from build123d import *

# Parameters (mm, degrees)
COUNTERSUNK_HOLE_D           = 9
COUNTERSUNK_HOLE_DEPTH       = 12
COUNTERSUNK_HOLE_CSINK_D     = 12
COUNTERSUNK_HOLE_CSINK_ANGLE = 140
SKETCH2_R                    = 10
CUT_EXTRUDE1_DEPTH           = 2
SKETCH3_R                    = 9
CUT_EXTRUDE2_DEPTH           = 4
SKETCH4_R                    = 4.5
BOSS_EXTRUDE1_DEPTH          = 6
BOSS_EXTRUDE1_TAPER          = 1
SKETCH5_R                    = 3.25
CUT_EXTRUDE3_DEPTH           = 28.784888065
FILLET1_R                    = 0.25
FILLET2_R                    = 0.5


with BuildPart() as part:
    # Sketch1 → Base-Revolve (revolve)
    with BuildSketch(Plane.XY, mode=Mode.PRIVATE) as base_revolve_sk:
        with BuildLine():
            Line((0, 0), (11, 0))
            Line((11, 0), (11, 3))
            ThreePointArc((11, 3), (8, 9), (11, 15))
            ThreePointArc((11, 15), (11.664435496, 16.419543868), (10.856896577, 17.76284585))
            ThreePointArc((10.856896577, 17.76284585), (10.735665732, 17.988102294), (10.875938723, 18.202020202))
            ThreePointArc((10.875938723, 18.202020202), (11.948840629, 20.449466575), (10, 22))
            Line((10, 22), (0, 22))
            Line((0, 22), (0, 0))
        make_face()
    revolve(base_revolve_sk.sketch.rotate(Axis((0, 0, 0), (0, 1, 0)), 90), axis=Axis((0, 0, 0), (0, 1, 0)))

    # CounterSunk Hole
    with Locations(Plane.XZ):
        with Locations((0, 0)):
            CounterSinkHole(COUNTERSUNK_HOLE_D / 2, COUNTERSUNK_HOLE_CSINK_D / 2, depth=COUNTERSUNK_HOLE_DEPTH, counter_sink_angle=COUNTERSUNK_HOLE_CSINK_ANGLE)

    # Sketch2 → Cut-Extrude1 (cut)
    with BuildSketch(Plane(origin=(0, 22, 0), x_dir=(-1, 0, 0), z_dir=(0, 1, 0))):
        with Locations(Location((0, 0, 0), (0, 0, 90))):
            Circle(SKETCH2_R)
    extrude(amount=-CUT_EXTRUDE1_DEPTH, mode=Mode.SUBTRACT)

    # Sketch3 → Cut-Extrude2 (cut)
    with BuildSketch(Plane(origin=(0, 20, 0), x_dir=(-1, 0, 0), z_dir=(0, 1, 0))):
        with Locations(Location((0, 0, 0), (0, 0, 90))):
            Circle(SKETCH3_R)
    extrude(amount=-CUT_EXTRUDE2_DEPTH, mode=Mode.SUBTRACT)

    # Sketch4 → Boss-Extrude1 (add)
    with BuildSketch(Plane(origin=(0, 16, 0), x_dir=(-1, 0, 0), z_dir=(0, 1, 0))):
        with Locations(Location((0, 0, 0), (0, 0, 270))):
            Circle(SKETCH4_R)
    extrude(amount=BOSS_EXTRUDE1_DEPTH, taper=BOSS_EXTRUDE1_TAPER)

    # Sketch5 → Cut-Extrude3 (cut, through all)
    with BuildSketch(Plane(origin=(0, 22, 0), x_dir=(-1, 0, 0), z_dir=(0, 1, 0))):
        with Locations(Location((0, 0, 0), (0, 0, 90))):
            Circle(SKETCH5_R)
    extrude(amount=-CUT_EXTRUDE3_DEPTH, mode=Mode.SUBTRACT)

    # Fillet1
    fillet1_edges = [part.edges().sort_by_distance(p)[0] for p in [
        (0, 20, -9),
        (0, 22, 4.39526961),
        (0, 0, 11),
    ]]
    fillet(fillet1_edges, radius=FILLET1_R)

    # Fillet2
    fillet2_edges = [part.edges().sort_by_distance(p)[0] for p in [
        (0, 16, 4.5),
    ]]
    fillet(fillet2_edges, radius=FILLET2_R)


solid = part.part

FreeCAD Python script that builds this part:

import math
import FreeCAD as App
import Part
import Sketcher
from FreeCAD import Vector
Q = App.Units.Quantity


def edges_at(feature, points):
    """Names of the edges that pass closest to the given points."""
    edges = feature.Shape.Edges
    near = lambda p: min(range(len(edges)), key=lambda i: edges[i].distToShape(Part.Vertex(*p))[0])
    return sorted({f"Edge{near(p) + 1}" for p in points})

doc = App.newDocument("Part")
body = doc.addObject("PartDesign::Body", "Body")

# Sketch on XY plane
sketch1 = doc.addObject("Sketcher::SketchObject", "Sketch")
body.addObject(sketch1)
sketch1.AttachmentSupport = (doc.XY_Plane, [""])
sketch1.MapMode = "FlatFace"
sketch1.addGeometry([
    Part.LineSegment(Vector(0, 0, 0), Vector(11, 0, 0)),  # 0
    Part.LineSegment(Vector(11, 0, 0), Vector(11, 3, 0)),  # 1
    Part.ArcOfCircle(Part.Circle(Vector(15.5, 9, 0), Vector(0, 0, 1), 7.5), math.radians(127), math.radians(233)),  # 2
    Part.ArcOfCircle(Part.Circle(Vector(10, 16.33, 0), Vector(0, 0, 1), 1.67), math.radians(-53), math.radians(59)),  # 3
    Part.ArcOfCircle(Part.Circle(Vector(10.99, 17.98, 0), Vector(0, 0, 1), 0.25), math.radians(116), math.radians(239)),  # 4
    Part.ArcOfCircle(Part.Circle(Vector(10, 20, 0), Vector(0, 0, 1), 2), math.radians(-64), math.radians(90)),  # 5
    Part.LineSegment(Vector(10, 22, 0), Vector(0, 22, 0)),  # 6
    Part.LineSegment(Vector(0, 22, 0), Vector(0, 0, 0)),  # 7
], False)
sketch1.addConstraint([
    Sketcher.Constraint("Coincident", 0, 2, 1, 1),
    Sketcher.Constraint("Coincident", 1, 2, 2, 2),
    Sketcher.Constraint("Tangent", 2, 1, 3, 1),
    Sketcher.Constraint("Tangent", 3, 2, 4, 2),
    Sketcher.Constraint("Tangent", 4, 1, 5, 1),
    Sketcher.Constraint("Tangent", 5, 2, 6, 1),
    Sketcher.Constraint("Coincident", 6, 2, 7, 1),
    Sketcher.Constraint("Coincident", 7, 2, 0, 1),
    Sketcher.Constraint("Horizontal", 0),
    Sketcher.Constraint("Vertical", 1),
    Sketcher.Constraint("Horizontal", 6),
    Sketcher.Constraint("Vertical", 7),
    Sketcher.Constraint("Coincident", 7, 2, -1, 1),
    Sketcher.Constraint("Vertical", 3, 3, 5, 3),
    Sketcher.Constraint("Vertical", 1, 2, 2, 1),
    Sketcher.Constraint("Radius", 5, Q("2 mm")),
    Sketcher.Constraint("Radius", 2, Q("7.5 mm")),
    Sketcher.Constraint("DistanceX", 0, 1, 0, 2, Q("11 mm")),
    Sketcher.Constraint("DistanceX", 6, 2, 6, 1, Q("10 mm")),
    Sketcher.Constraint("DistanceY", 1, 1, 1, 2, Q("3 mm")),
    Sketcher.Constraint("DistanceY", 7, 2, 7, 1, Q("22 mm")),
    Sketcher.Constraint("Radius", 4, Q("0.25 mm")),
    Sketcher.Constraint("DistanceY", -1, 1, 2, 3, Q("9 mm")),
])
revolution = doc.addObject("PartDesign::Revolution", "Revolution")
body.addObject(revolution)
revolution.Profile = sketch1
revolution.ReferenceAxis = (sketch1, ["V_Axis"])
revolution.Angle = 360

# Sketch on XZ plane
sketch2 = doc.addObject("Sketcher::SketchObject", "Sketch001")
body.addObject(sketch2)
sketch2.AttachmentSupport = (doc.XZ_Plane, [""])
sketch2.MapMode = "FlatFace"
sketch2.addGeometry(Part.Circle(Vector(0, 0, 0), Vector(0, 0, 1), 4.5), False)
sketch2.addConstraint([
    Sketcher.Constraint("Coincident", 0, 3, -1, 1),
    Sketcher.Constraint("Diameter", 0, Q("9 mm")),
])
doc.recompute()
hole = doc.addObject("PartDesign::Hole", "Hole")
body.addObject(hole)
hole.Profile = sketch2
hole.ThreadType = "None"
hole.Diameter = 9
hole.DepthType = "Dimension"
hole.Depth = 12
hole.DrillPoint = "Flat"
hole.HoleCutType = "Countersink"
hole.HoleCutDiameter = 12
hole.HoleCutCountersinkAngle = 140

# Sketch on XZ plane
sketch3 = doc.addObject("Sketcher::SketchObject", "Sketch002")
body.addObject(sketch3)
sketch3.AttachmentSupport = (doc.XZ_Plane, [""])
sketch3.MapMode = "FlatFace"
sketch3.AttachmentOffset = App.Placement(Vector(0, 0, -22), App.Rotation())
sketch3.addGeometry(Part.Circle(Vector(0, 0, 0), Vector(0, 0, 1), 10), False)
sketch3.addConstraint([
    Sketcher.Constraint("Coincident", 0, 3, -1, 1),
    Sketcher.Constraint("Diameter", 0, Q("20 mm")),
])
pocket1 = doc.addObject("PartDesign::Pocket", "Pocket")
body.addObject(pocket1)
pocket1.Profile = sketch3
pocket1.Length = 2
pocket1.Reversed = True

# Sketch on XZ plane
sketch4 = doc.addObject("Sketcher::SketchObject", "Sketch003")
body.addObject(sketch4)
sketch4.AttachmentSupport = (doc.XZ_Plane, [""])
sketch4.MapMode = "FlatFace"
sketch4.AttachmentOffset = App.Placement(Vector(0, 0, -20), App.Rotation())
sketch4.addGeometry(Part.Circle(Vector(0, 0, 0), Vector(0, 0, 1), 9), False)
sketch4.addConstraint([
    Sketcher.Constraint("Coincident", 0, 3, -1, 1),
    Sketcher.Constraint("Diameter", 0, Q("18 mm")),
])
pocket2 = doc.addObject("PartDesign::Pocket", "Pocket001")
body.addObject(pocket2)
pocket2.Profile = sketch4
pocket2.Length = 4
pocket2.Reversed = True

# Sketch on XZ plane
sketch5 = doc.addObject("Sketcher::SketchObject", "Sketch004")
body.addObject(sketch5)
sketch5.AttachmentSupport = (doc.XZ_Plane, [""])
sketch5.MapMode = "FlatFace"
sketch5.AttachmentOffset = App.Placement(Vector(0, 0, -16), App.Rotation())
sketch5.addGeometry(Part.Circle(Vector(0, 0, 0), Vector(0, 0, 1), 4.5), False)
sketch5.addConstraint([
    Sketcher.Constraint("Coincident", 0, 3, -1, 1),
    Sketcher.Constraint("Diameter", 0, Q("9 mm")),
])
pad1 = doc.addObject("PartDesign::Pad", "Pad")
body.addObject(pad1)
pad1.Profile = sketch5
pad1.Length = 6
pad1.Reversed = True
pad1.TaperAngle = -1

# Sketch on XZ plane
sketch6 = doc.addObject("Sketcher::SketchObject", "Sketch005")
body.addObject(sketch6)
sketch6.AttachmentSupport = (doc.XZ_Plane, [""])
sketch6.MapMode = "FlatFace"
sketch6.AttachmentOffset = App.Placement(Vector(0, 0, -22), App.Rotation())
sketch6.addGeometry(Part.Circle(Vector(0, 0, 0), Vector(0, 0, 1), 3.2), False)
sketch6.addConstraint([
    Sketcher.Constraint("Coincident", 0, 3, -1, 1),
    Sketcher.Constraint("Diameter", 0, Q("6.5 mm")),
])
pocket3 = doc.addObject("PartDesign::Pocket", "Pocket002")
body.addObject(pocket3)
pocket3.Profile = sketch6
pocket3.Type = "ThroughAll"
pocket3.Reversed = True
doc.recompute()

fillet = doc.addObject("PartDesign::Fillet", "Fillet")
body.addObject(fillet)
fillet.Base = (pocket3, edges_at(pocket3, [(0, 20, -9), (0, 22, 4.395), (0, 0, 11)]))
fillet.Radius = 0.25
doc.recompute()

fillet2 = doc.addObject("PartDesign::Fillet", "Fillet001")
body.addObject(fillet2)
fillet2.Base = (fillet, edges_at(fillet, [(0, 16, 4.5)]))
fillet2.Radius = 0.5

doc.recompute()
